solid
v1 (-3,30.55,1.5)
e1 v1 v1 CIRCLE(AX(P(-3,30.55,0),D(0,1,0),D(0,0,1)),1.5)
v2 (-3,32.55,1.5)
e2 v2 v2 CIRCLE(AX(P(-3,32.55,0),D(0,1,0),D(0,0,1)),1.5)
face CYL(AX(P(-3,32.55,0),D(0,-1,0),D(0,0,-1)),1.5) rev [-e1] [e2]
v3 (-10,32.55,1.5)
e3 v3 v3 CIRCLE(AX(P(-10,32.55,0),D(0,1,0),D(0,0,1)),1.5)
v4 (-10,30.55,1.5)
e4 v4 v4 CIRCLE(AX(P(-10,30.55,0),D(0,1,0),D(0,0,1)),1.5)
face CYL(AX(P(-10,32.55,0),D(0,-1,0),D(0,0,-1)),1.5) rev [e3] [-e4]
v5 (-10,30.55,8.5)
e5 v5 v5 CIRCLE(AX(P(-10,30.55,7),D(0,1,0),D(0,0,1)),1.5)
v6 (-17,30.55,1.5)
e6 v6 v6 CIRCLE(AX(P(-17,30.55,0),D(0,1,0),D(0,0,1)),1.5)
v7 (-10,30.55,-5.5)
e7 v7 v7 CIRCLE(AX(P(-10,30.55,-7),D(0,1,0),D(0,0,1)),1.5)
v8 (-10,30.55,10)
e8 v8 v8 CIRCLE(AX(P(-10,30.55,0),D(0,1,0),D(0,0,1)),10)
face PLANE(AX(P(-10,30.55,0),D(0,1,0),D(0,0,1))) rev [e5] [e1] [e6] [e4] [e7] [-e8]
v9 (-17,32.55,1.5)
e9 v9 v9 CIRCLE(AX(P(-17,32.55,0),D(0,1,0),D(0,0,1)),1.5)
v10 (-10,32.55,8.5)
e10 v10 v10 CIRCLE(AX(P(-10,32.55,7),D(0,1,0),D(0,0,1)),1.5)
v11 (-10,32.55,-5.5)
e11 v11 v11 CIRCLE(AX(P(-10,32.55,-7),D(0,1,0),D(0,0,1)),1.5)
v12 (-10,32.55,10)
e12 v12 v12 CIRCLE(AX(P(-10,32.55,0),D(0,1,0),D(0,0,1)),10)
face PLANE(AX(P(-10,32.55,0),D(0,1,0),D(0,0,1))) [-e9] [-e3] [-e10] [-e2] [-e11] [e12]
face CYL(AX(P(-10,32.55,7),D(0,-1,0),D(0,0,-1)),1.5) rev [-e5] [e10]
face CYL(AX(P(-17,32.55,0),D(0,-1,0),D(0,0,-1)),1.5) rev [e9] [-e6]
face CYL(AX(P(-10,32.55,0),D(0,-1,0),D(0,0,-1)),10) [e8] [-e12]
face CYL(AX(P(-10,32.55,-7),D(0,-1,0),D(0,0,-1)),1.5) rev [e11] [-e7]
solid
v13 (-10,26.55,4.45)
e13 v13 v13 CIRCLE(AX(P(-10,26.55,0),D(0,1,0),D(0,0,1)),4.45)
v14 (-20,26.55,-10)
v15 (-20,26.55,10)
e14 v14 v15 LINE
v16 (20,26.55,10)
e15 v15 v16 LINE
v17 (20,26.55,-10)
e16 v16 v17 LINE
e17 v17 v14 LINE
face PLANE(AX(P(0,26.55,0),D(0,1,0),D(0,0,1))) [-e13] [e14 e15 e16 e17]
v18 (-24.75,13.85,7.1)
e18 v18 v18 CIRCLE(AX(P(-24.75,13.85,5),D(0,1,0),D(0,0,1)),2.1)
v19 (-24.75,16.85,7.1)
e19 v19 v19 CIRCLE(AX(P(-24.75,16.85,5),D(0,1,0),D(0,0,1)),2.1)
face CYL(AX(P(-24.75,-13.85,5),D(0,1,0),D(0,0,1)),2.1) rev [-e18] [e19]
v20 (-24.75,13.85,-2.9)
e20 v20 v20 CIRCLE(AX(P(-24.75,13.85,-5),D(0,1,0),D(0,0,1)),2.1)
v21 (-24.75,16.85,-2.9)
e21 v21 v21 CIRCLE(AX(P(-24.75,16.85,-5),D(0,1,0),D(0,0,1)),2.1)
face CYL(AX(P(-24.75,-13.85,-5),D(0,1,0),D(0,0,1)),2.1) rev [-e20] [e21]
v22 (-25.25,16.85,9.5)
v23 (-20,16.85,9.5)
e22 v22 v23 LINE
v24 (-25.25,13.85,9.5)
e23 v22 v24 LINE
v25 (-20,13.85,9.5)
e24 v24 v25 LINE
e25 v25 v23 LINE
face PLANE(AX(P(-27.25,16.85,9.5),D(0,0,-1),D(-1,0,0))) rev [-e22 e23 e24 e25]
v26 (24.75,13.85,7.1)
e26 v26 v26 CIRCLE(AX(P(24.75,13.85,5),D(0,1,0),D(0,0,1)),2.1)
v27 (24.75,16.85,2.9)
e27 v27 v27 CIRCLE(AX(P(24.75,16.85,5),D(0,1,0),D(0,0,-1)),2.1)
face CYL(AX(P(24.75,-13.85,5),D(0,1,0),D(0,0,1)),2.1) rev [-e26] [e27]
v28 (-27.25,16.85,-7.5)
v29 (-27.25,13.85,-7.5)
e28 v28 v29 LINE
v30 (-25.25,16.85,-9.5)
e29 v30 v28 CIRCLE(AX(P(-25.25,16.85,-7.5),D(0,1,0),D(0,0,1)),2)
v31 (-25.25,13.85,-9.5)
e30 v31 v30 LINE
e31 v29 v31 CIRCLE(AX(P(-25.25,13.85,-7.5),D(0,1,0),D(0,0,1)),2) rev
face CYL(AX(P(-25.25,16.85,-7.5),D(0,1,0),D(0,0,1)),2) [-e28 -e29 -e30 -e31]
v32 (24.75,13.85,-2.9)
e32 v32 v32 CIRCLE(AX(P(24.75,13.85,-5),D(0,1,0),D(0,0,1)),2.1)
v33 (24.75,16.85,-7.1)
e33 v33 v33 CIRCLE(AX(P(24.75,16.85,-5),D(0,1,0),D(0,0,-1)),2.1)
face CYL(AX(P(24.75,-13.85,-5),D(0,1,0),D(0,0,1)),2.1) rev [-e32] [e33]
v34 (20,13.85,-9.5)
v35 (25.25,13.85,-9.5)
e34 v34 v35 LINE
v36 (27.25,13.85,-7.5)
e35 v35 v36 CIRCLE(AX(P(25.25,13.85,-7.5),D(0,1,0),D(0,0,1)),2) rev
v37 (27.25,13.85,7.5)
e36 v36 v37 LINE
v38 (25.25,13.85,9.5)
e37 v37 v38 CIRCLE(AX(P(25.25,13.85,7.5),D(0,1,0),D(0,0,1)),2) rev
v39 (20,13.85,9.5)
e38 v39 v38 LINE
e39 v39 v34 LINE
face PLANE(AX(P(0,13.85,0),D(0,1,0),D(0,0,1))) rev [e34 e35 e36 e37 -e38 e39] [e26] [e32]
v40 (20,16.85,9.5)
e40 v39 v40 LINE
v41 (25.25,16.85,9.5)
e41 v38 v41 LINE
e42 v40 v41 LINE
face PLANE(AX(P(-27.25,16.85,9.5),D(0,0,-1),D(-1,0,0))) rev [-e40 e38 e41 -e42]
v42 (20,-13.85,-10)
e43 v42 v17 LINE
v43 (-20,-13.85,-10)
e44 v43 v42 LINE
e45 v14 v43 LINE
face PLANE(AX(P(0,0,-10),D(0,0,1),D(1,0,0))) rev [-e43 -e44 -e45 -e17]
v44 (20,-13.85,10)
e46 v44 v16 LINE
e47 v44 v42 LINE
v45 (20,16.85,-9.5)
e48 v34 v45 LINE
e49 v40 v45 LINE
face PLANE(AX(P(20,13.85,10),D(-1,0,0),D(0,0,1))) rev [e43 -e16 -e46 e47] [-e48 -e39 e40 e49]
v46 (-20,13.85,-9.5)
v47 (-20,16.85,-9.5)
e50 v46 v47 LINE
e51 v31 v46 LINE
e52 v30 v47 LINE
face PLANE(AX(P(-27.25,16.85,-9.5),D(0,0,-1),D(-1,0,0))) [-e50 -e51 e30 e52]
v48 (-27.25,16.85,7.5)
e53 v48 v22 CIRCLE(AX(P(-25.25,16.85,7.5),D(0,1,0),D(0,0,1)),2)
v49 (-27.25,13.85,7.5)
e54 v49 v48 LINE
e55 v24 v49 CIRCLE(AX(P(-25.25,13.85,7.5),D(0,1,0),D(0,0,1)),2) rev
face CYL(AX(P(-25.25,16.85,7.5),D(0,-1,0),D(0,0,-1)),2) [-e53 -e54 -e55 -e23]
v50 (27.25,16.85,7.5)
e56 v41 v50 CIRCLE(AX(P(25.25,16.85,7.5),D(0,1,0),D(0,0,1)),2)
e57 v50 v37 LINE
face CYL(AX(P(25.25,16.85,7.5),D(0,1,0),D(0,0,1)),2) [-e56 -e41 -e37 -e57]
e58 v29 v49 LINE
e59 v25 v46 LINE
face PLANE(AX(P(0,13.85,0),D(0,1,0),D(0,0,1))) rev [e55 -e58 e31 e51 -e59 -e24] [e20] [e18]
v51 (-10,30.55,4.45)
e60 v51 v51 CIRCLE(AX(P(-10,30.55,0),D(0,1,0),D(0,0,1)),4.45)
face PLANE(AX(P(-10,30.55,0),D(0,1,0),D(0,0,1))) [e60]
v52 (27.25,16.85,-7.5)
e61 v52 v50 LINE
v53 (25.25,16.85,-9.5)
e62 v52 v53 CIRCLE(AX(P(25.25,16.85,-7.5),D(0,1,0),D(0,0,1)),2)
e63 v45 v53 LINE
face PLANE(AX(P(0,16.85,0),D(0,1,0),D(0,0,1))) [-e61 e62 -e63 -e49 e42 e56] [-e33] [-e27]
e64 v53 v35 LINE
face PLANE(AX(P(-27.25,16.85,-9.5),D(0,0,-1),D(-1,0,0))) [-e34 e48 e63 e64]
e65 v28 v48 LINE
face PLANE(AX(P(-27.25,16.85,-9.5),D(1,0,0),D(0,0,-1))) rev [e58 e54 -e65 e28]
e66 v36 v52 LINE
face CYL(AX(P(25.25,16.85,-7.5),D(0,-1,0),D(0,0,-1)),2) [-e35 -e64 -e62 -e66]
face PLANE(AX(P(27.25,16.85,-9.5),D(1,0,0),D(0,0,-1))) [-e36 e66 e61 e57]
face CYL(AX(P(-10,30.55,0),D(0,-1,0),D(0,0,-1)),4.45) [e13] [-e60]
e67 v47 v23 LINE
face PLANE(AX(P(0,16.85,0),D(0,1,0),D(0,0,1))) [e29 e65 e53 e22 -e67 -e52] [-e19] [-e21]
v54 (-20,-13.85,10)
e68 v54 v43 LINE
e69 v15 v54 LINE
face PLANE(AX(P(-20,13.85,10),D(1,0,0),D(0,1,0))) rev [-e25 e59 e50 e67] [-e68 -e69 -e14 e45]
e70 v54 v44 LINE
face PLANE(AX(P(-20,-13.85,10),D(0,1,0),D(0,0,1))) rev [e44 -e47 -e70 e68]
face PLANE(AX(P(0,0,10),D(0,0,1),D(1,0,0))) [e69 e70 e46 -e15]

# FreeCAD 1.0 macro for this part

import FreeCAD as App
import Part
import Sketcher
Q = App.Units.Quantity


def edges_at(feature, points):
    """Names of the edges that pass closest to the given points."""
    edges = feature.Shape.Edges
    near = lambda p: min(range(len(edges)), key=lambda i: edges[i].distToShape(Part.Vertex(*p))[0])
    return sorted({f"Edge{near(p) + 1}" for p in points})


def add_polygon(sketch, points):
    """Adds a closed chain of lines whose ends are joined by coincident constraints."""
    first, n = sketch.GeometryCount, len(points)
    for a, b in zip(points, points[1:] + points[:1]):
        sketch.addGeometry(Part.LineSegment(App.Vector(*a, 0), App.Vector(*b, 0)), False)
    for i in range(n):
        sketch.addConstraint(Sketcher.Constraint("Coincident", first + i, 2, first + (i + 1) % n, 1))

doc = App.newDocument("Part")
body = doc.addObject("PartDesign::Body", "Body")

# Sketch on XY plane
sketch1 = body.newObject("Sketcher::SketchObject", "Sketch")
sketch1.AttachmentSupport = (doc.getObject("XY_Plane"), [""])
sketch1.MapMode = "FlatFace"
add_polygon(sketch1, [(-20, 14), (-20, -14), (20, -14), (20, 14)])  # lines 0-3
sketch1.addConstraint([
    Sketcher.Constraint("Vertical", 0),
    Sketcher.Constraint("Horizontal", 1),
    Sketcher.Constraint("Vertical", 2),
    Sketcher.Constraint("Horizontal", 3),
    Sketcher.Constraint("Symmetric", 0, 2, 2, 2, -1, 1),
    Sketcher.Constraint("DistanceX", 1, 1, 1, 2, Q("40 mm")),
    Sketcher.Constraint("DistanceY", 0, 2, 0, 1, Q("27.7 mm")),
])
pad1 = body.newObject("PartDesign::Pad", "Pad")
pad1.Profile = sketch1
pad1.Length = 20
pad1.Midplane = True

# Sketch on XZ plane
sketch2 = body.newObject("Sketcher::SketchObject", "Sketch001")
sketch2.AttachmentSupport = (doc.getObject("XZ_Plane"), [""])
sketch2.MapMode = "FlatFace"
sketch2.AttachmentOffset = App.Placement(App.Vector(0, 0, -13.85), App.Rotation())
add_polygon(sketch2, [(-27.2, -9.5), (-27.2, 9.5), (-20, 9.5), (-20, 10), (20, 10), (20, 9.5), (27.2, 9.5), (27.2, -9.5), (20, -9.5), (20, -10), (-20, -10), (-20, -9.5)])  # lines 0-11
sketch2.addConstraint([
    Sketcher.Constraint("Vertical", 0),
    Sketcher.Constraint("Horizontal", 1),
    Sketcher.Constraint("Vertical", 2),
    Sketcher.Constraint("Horizontal", 3),
    Sketcher.Constraint("Vertical", 4),
    Sketcher.Constraint("Horizontal", 5),
    Sketcher.Constraint("Vertical", 6),
    Sketcher.Constraint("Horizontal", 7),
    Sketcher.Constraint("Vertical", 8),
    Sketcher.Constraint("Horizontal", 9),
    Sketcher.Constraint("Vertical", 10),
    Sketcher.Constraint("Horizontal", 11),
    Sketcher.Constraint("Symmetric", 0, 2, 6, 2, -1, 1),
    Sketcher.Constraint("Symmetric", 2, 2, 8, 2, -1, 1),
    Sketcher.Constraint("Symmetric", 4, 2, 10, 2, -1, 1),
    Sketcher.Constraint("Symmetric", 1, 2, 4, 2, -2),
    Sketcher.Constraint("DistanceX", 3, 1, 3, 2, Q("40 mm")),
    Sketcher.Constraint("DistanceY", 0, 1, 0, 2, Q("19 mm")),
    Sketcher.Constraint("DistanceY", 2, 1, 2, 2, Q("0.5 mm")),
    Sketcher.Constraint("DistanceX", 1, 1, 1, 2, Q("7.25 mm")),
])
pad2 = body.newObject("PartDesign::Pad", "Pad001")
pad2.Profile = sketch2
pad2.Length = 3
pad2.Reversed = True
doc.recompute()

fillet = body.newObject("PartDesign::Fillet", "Fillet")
fillet.Base = (pad2, edges_at(pad2, [
    (27.25, 15.35, 9.5),
    (27.25, 15.35, -9.5),
    (-27.25, 15.35, -9.5),
    (-27.25, 15.35, 9.5),
]))
fillet.Radius = 2

# Sketch on XZ plane
sketch3 = body.newObject("Sketcher::SketchObject", "Sketch002")
sketch3.AttachmentSupport = (doc.getObject("XZ_Plane"), [""])
sketch3.MapMode = "FlatFace"
sketch3.AttachmentOffset = App.Placement(App.Vector(0, 0, -16.85), App.Rotation())
add_polygon(sketch3, [(-20, -10), (-20, 10), (20, 10), (20, -10)])  # lines 0-3
sketch3.addConstraint([
    Sketcher.Constraint("Vertical", 0),
    Sketcher.Constraint("Horizontal", 1),
    Sketcher.Constraint("Vertical", 2),
    Sketcher.Constraint("Horizontal", 3),
    Sketcher.Constraint("Symmetric", 0, 2, 2, 2, -1, 1),
    Sketcher.Constraint("DistanceX", 1, 1, 1, 2, Q("40 mm")),
    Sketcher.Constraint("DistanceY", 0, 1, 0, 2, Q("20 mm")),
])
pad3 = body.newObject("PartDesign::Pad", "Pad002")
pad3.Profile = sketch3
pad3.Length = 9.7
pad3.Reversed = True

# Sketch on XZ plane
sketch4 = body.newObject("Sketcher::SketchObject", "Sketch003")
sketch4.AttachmentSupport = (doc.getObject("XZ_Plane"), [""])
sketch4.MapMode = "FlatFace"
sketch4.AttachmentOffset = App.Placement(App.Vector(0, 0, -16.85), App.Rotation())
sketch4.addGeometry([
    Part.Circle(App.Vector(-24.8, -5, 0), App.Vector(0, 0, 1), 2.1),
    Part.Circle(App.Vector(-24.8, 5, 0), App.Vector(0, 0, 1), 2.1),
    Part.Circle(App.Vector(24.8, 5, 0), App.Vector(0, 0, 1), 2.1),
    Part.Circle(App.Vector(24.8, -5, 0), App.Vector(0, 0, 1), 2.1),
], False)
sketch4.addConstraint([
    Sketcher.Constraint("Equal", 0, 1),
    Sketcher.Constraint("Equal", 1, 2),
    Sketcher.Constraint("Equal", 2, 3),
    Sketcher.Constraint("Symmetric", 0, 3, 2, 3, -1, 1),
    Sketcher.Constraint("Symmetric", 1, 3, 3, 3, -1, 1),
    Sketcher.Constraint("Symmetric", 1, 3, 2, 3, -2),
    Sketcher.Constraint("Diameter", 0, Q("4.2 mm")),
    Sketcher.Constraint("DistanceY", 0, 3, -1, 1, Q("5 mm")),
    Sketcher.Constraint("DistanceX", 1, 3, 2, 3, Q("49.5 mm")),
])
pocket1 = body.newObject("PartDesign::Pocket", "Pocket")
pocket1.Profile = sketch4
pocket1.Type = "ThroughAll"
pocket1.Reversed = True

# Sketch on XZ plane
sketch5 = body.newObject("Sketcher::SketchObject", "Sketch004")
sketch5.AttachmentSupport = (doc.getObject("XZ_Plane"), [""])
sketch5.MapMode = "FlatFace"
sketch5.AttachmentOffset = App.Placement(App.Vector(0, 0, -26.55), App.Rotation())
sketch5.addGeometry(Part.Circle(App.Vector(-10, 0, 0), App.Vector(0, 0, 1), 4.5), False)
sketch5.addConstraint([
    Sketcher.Constraint("PointOnObject", 0, 3, -1),
    Sketcher.Constraint("Diameter", 0, Q("8.9 mm")),
    Sketcher.Constraint("DistanceX", 0, 3, -1, 1, Q("10 mm")),
])
pad4 = body.newObject("PartDesign::Pad", "Pad003")
pad4.Profile = sketch5
pad4.Length = 4
pad4.Reversed = True
body2 = doc.addObject("PartDesign::Body", "Body001")

# Sketch on XZ plane
sketch6 = body2.newObject("Sketcher::SketchObject", "Sketch005")
sketch6.AttachmentSupport = (doc.getObject("XZ_Plane001"), [""])
sketch6.MapMode = "FlatFace"
sketch6.AttachmentOffset = App.Placement(App.Vector(0, 0, -30.55), App.Rotation())
sketch6.addGeometry([
    Part.Circle(App.Vector(-10, 0, 0), App.Vector(0, 0, 1), 10),  # 0
    Part.Circle(App.Vector(-10, -7, 0), App.Vector(0, 0, 1), 1.5),  # 1
    Part.Circle(App.Vector(-17, 0, 0), App.Vector(0, 0, 1), 1.5),  # 2
    Part.Circle(App.Vector(-3, 0, 0), App.Vector(0, 0, 1), 1.5),  # 3
    Part.Circle(App.Vector(-10, 0, 0), App.Vector(0, 0, 1), 1.5),  # 4
    Part.Circle(App.Vector(-10, 7, 0), App.Vector(0, 0, 1), 1.5),  # 5
], False)
sketch6.addConstraint([
    Sketcher.Constraint("Coincident", 4, 3, 0, 3),
    Sketcher.Constraint("Equal", 1, 2),
    Sketcher.Constraint("Equal", 2, 3),
    Sketcher.Constraint("Equal", 3, 4),
    Sketcher.Constraint("Equal", 4, 5),
    Sketcher.Constraint("Symmetric", 1, 3, 5, 3, -1),
    Sketcher.Constraint("PointOnObject", 0, 3, -1),
    Sketcher.Constraint("PointOnObject", 2, 3, -1),
    Sketcher.Constraint("PointOnObject", 3, 3, -1),
    Sketcher.Constraint("Vertical", 0, 3, 1, 3),
    Sketcher.Constraint("Diameter", 0, Q("20 mm")),
    Sketcher.Constraint("Diameter", 1, Q("3 mm")),
    Sketcher.Constraint("DistanceX", 0, 3, -1, 1, Q("10 mm")),
    Sketcher.Constraint("DistanceY", 1, 3, -1, 1, Q("7 mm")),
    Sketcher.Constraint("DistanceX", 2, 3, -1, 1, Q("17 mm")),
    Sketcher.Constraint("DistanceX", 3, 3, -1, 1, Q("3 mm")),
])
pad5 = body2.newObject("PartDesign::Pad", "Pad004")
pad5.Profile = sketch6
pad5.Length = 2
pad5.Reversed = True

doc.recompute()
